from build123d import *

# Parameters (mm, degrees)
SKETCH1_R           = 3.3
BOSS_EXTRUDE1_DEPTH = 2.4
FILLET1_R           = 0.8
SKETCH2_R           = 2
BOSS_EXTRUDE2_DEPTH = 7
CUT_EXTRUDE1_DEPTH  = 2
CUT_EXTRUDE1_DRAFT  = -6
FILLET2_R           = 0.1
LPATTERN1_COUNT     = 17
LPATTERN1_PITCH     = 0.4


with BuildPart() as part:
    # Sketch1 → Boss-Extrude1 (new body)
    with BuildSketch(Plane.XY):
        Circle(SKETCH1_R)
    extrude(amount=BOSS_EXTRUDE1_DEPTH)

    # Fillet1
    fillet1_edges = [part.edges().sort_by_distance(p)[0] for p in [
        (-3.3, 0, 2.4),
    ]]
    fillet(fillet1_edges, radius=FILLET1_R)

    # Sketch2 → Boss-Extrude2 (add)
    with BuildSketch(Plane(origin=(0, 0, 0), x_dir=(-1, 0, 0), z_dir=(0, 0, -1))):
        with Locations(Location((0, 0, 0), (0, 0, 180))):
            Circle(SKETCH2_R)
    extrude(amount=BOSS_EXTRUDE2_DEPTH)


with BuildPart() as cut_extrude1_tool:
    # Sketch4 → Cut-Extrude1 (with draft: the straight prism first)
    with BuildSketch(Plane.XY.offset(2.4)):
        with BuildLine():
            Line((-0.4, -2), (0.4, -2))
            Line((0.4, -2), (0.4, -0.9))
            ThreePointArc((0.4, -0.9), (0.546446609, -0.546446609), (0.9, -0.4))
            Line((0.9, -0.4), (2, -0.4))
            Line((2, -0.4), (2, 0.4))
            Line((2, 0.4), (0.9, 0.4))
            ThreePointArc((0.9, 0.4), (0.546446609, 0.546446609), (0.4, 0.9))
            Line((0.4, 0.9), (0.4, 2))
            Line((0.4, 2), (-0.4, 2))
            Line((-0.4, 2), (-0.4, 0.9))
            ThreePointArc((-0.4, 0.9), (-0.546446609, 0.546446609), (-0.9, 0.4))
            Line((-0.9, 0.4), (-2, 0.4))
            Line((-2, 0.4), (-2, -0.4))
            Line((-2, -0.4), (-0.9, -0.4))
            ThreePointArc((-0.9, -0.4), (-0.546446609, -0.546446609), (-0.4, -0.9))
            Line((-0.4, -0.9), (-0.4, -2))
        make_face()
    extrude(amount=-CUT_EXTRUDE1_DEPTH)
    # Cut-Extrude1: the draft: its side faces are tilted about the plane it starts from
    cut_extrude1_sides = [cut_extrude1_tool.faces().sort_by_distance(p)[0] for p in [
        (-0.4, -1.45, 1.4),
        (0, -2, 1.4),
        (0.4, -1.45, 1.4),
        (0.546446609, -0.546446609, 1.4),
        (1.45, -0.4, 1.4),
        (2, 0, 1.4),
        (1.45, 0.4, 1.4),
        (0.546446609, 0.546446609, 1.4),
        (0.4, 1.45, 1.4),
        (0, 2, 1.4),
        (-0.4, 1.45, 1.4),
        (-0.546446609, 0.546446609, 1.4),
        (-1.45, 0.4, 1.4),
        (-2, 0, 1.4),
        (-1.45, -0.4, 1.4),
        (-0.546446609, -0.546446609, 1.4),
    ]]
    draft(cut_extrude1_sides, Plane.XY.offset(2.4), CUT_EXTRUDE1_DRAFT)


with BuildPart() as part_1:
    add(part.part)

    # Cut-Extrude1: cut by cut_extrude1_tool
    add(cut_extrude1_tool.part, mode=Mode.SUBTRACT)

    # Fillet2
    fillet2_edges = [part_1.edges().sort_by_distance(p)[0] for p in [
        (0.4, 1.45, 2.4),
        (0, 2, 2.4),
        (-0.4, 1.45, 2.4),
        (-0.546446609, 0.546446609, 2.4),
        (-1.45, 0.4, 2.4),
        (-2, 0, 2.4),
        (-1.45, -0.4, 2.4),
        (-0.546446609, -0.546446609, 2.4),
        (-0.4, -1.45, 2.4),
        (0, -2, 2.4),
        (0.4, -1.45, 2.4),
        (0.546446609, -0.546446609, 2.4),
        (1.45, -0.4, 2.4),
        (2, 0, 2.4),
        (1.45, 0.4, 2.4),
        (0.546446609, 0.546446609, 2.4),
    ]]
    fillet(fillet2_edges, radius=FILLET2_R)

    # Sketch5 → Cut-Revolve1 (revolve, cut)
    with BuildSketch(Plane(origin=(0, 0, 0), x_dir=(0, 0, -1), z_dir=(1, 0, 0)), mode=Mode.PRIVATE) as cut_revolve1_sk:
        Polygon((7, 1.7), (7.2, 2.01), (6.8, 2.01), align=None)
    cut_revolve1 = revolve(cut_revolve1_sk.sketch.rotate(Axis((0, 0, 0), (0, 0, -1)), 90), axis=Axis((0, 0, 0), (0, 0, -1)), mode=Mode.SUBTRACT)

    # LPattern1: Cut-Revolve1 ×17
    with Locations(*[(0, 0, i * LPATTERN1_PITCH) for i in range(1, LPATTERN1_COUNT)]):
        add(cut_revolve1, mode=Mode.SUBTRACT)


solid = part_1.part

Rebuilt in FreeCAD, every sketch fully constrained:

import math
import FreeCAD as App
import Part
import Sketcher
from FreeCAD import Vector


def edges_at(feature, points):
    """Names of the edges that pass closest to the given points."""
    edges = feature.Shape.Edges
    near = lambda p: min(range(len(edges)), key=lambda i: edges[i].distToShape(Part.Vertex(*p))[0])
    return sorted({f"Edge{near(p) + 1}" for p in points})


def faces_at(feature, points):
    """Names of the faces that lie closest to the given points."""
    faces = feature.Shape.Faces
    near = lambda p: min(range(len(faces)), key=lambda i: faces[i].distToShape(Part.Vertex(*p))[0])
    return sorted({f"Face{near(p) + 1}" for p in points})

doc = App.newDocument("Part")
body = doc.addObject("PartDesign::Body", "Body")

# Sketch on XY plane
sketch1 = body.newObject("Sketcher::SketchObject", "Sketch")
sketch1.AttachmentSupport = (doc.getObject("XY_Plane"), [""])
sketch1.MapMode = "FlatFace"
sketch1.addGeometry(Part.Circle(Vector(0, 0, 0), Vector(0, 0, 1), 3.3), False)
sketch1.addConstraint(Sketcher.Constraint("Coincident", 0, 3, -1, 1))
sketch1.addConstraint(Sketcher.Constraint("Diameter", 0, 6.6))
pad1 = body.newObject("PartDesign::Pad", "Pad")
pad1.Profile = sketch1
pad1.Length = 2.4
doc.recompute()

fillet = body.newObject("PartDesign::Fillet", "Fillet")
fillet.Base = (pad1, edges_at(pad1, [(-3.3, 0, 2.4)]))
fillet.Radius = 0.8

# Sketch on XY plane
sketch2 = body.newObject("Sketcher::SketchObject", "Sketch001")
sketch2.AttachmentSupport = (doc.getObject("XY_Plane"), [""])
sketch2.MapMode = "FlatFace"
sketch2.addGeometry(Part.Circle(Vector(0, 0, 0), Vector(0, 0, 1), 2), False)
sketch2.addConstraint(Sketcher.Constraint("Coincident", 0, 3, -1, 1))
sketch2.addConstraint(Sketcher.Constraint("Diameter", 0, 4.0))
pad2 = body.newObject("PartDesign::Pad", "Pad001")
pad2.Profile = sketch2
pad2.Length = 7
pad2.Reversed = True
body2 = doc.addObject("PartDesign::Body", "Body001")

# Sketch on XY plane
sketch3 = body2.newObject("Sketcher::SketchObject", "Sketch002")
sketch3.AttachmentSupport = (doc.getObject("XY_Plane001"), [""])
sketch3.MapMode = "FlatFace"
sketch3.AttachmentOffset = App.Placement(Vector(0, 0, 2.4), App.Rotation())
sketch3.addGeometry(Part.LineSegment(Vector(-0.4, -2, 0), Vector(0.4, -2, 0)), False)
sketch3.addGeometry(Part.LineSegment(Vector(0.4, -2, 0), Vector(0.4, -0.9, 0)), False)
sketch3.addGeometry(Part.ArcOfCircle(Part.Circle(Vector(0.9, -0.9, 0), Vector(0, 0, 1), 0.5), math.radians(90), math.radians(180)), False)
sketch3.addGeometry(Part.LineSegment(Vector(0.9, -0.4, 0), Vector(2, -0.4, 0)), False)
sketch3.addGeometry(Part.LineSegment(Vector(2, -0.4, 0), Vector(2, 0.4, 0)), False)
sketch3.addGeometry(Part.LineSegment(Vector(2, 0.4, 0), Vector(0.9, 0.4, 0)), False)
sketch3.addGeometry(Part.ArcOfCircle(Part.Circle(Vector(0.9, 0.9, 0), Vector(0, 0, 1), 0.5), math.radians(180), math.radians(270)), False)
sketch3.addGeometry(Part.LineSegment(Vector(0.4, 0.9, 0), Vector(0.4, 2, 0)), False)
sketch3.addGeometry(Part.LineSegment(Vector(0.4, 2, 0), Vector(-0.4, 2, 0)), False)
sketch3.addGeometry(Part.LineSegment(Vector(-0.4, 2, 0), Vector(-0.4, 0.9, 0)), False)
sketch3.addGeometry(Part.ArcOfCircle(Part.Circle(Vector(-0.9, 0.9, 0), Vector(0, 0, 1), 0.5), math.radians(-90), math.radians(0)), False)
sketch3.addGeometry(Part.LineSegment(Vector(-0.9, 0.4, 0), Vector(-2, 0.4, 0)), False)
sketch3.addGeometry(Part.LineSegment(Vector(-2, 0.4, 0), Vector(-2, -0.4, 0)), False)
sketch3.addGeometry(Part.LineSegment(Vector(-2, -0.4, 0), Vector(-0.9, -0.4, 0)), False)
sketch3.addGeometry(Part.ArcOfCircle(Part.Circle(Vector(-0.9, -0.9, 0), Vector(0, 0, 1), 0.5), math.radians(0), math.radians(90)), False)
sketch3.addGeometry(Part.LineSegment(Vector(-0.4, -0.9, 0), Vector(-0.4, -2, 0)), False)
sketch3.addConstraint(Sketcher.Constraint("Coincident", 0, 2, 1, 1))
sketch3.addConstraint(Sketcher.Constraint("Tangent", 1, 2, 2, 2))
sketch3.addConstraint(Sketcher.Constraint("Tangent", 2, 1, 3, 1))
sketch3.addConstraint(Sketcher.Constraint("Coincident", 3, 2, 4, 1))
sketch3.addConstraint(Sketcher.Constraint("Coincident", 4, 2, 5, 1))
sketch3.addConstraint(Sketcher.Constraint("Tangent", 5, 2, 6, 2))
sketch3.addConstraint(Sketcher.Constraint("Tangent", 6, 1, 7, 1))
sketch3.addConstraint(Sketcher.Constraint("Coincident", 7, 2, 8, 1))
sketch3.addConstraint(Sketcher.Constraint("Coincident", 8, 2, 9, 1))
sketch3.addConstraint(Sketcher.Constraint("Tangent", 9, 2, 10, 2))
sketch3.addConstraint(Sketcher.Constraint("Tangent", 10, 1, 11, 1))
sketch3.addConstraint(Sketcher.Constraint("Coincident", 11, 2, 12, 1))
sketch3.addConstraint(Sketcher.Constraint("Coincident", 12, 2, 13, 1))
sketch3.addConstraint(Sketcher.Constraint("Tangent", 13, 2, 14, 2))
sketch3.addConstraint(Sketcher.Constraint("Tangent", 14, 1, 15, 1))
sketch3.addConstraint(Sketcher.Constraint("Coincident", 15, 2, 0, 1))
sketch3.addConstraint(Sketcher.Constraint("Horizontal", 0))
sketch3.addConstraint(Sketcher.Constraint("Vertical", 1))
sketch3.addConstraint(Sketcher.Constraint("Horizontal", 3))
sketch3.addConstraint(Sketcher.Constraint("Vertical", 4))
sketch3.addConstraint(Sketcher.Constraint("Horizontal", 5))
sketch3.addConstraint(Sketcher.Constraint("Vertical", 7))
sketch3.addConstraint(Sketcher.Constraint("Horizontal", 8))
sketch3.addConstraint(Sketcher.Constraint("Vertical", 9))
sketch3.addConstraint(Sketcher.Constraint("Horizontal", 11))
sketch3.addConstraint(Sketcher.Constraint("Vertical", 12))
sketch3.addConstraint(Sketcher.Constraint("Horizontal", 13))
sketch3.addConstraint(Sketcher.Constraint("Vertical", 15))
sketch3.addConstraint(Sketcher.Constraint("Equal", 2, 6))
sketch3.addConstraint(Sketcher.Constraint("Equal", 6, 10))
sketch3.addConstraint(Sketcher.Constraint("Equal", 10, 14))
sketch3.addConstraint(Sketcher.Constraint("Symmetric", 2, 3, 10, 3, -1, 1))
sketch3.addConstraint(Sketcher.Constraint("Symmetric", 6, 3, 14, 3, -1, 1))
sketch3.addConstraint(Sketcher.Constraint("Symmetric", 6, 3, 10, 3, -2))
sketch3.addConstraint(Sketcher.Constraint("Equal", 5, 11))
sketch3.addConstraint(Sketcher.Constraint("Equal", 13, 1))
sketch3.addConstraint(Sketcher.Constraint("Equal", 8, 4))
sketch3.addConstraint(Sketcher.Constraint("Equal", 1, 7))
sketch3.addConstraint(Sketcher.Constraint("Radius", 2, 0.5))
sketch3.addConstraint(Sketcher.Constraint("DistanceX", 0, 1, 0, 2, 0.8))
sketch3.addConstraint(Sketcher.Constraint("DistanceX", 3, 1, 3, 2, 1.1))
pad3 = body2.newObject("PartDesign::Pad", "Pad002")
pad3.Profile = sketch3
pad3.Length = 2
pad3.Reversed = True
doc.recompute()

datumplane = body2.newObject("PartDesign::Plane", "DatumPlane")
datumplane.AttachmentSupport = (doc.getObject("XY_Plane001"), [""])
datumplane.MapMode = "FlatFace"
datumplane.AttachmentOffset = App.Placement(Vector(0, 0, 2.4), App.Rotation())
draft = body2.newObject("PartDesign::Draft", "Draft")
draft.Base = (pad3, faces_at(pad3, [
    (-0.4, -1.45, 1.4),
    (0, -2, 1.4),
    (0.4, -1.45, 1.4),
    (0.546, -0.546, 1.4),
    (1.45, -0.4, 1.4),
    (2, 0, 1.4),
    (1.45, 0.4, 1.4),
    (0.546, 0.546, 1.4),
    (0.4, 1.45, 1.4),
    (0, 2, 1.4),
    (-0.4, 1.45, 1.4),
    (-0.546, 0.546, 1.4),
    (-1.45, 0.4, 1.4),
    (-2, 0, 1.4),
    (-1.45, -0.4, 1.4),
    (-0.546, -0.546, 1.4),
]))
draft.NeutralPlane = (datumplane, [""])
draft.Angle = 6
draft.Reversed = True
doc.recompute()

boolean = body.newObject("PartDesign::Boolean", "Boolean")
boolean.Type = "Cut"
boolean.addObjects([body2])
doc.recompute()

fillet2 = body.newObject("PartDesign::Fillet", "Fillet001")
fillet2.Base = (boolean, edges_at(boolean, [
    (0.4, 1.45, 2.4),
    (0, 2, 2.4),
    (-0.4, 1.45, 2.4),
    (-0.546, 0.546, 2.4),
    (-1.45, 0.4, 2.4),
    (-2, 0, 2.4),
    (-1.45, -0.4, 2.4),
    (-0.546, -0.546, 2.4),
    (-0.4, -1.45, 2.4),
    (0, -2, 2.4),
    (0.4, -1.45, 2.4),
    (0.546, -0.546, 2.4),
    (1.45, -0.4, 2.4),
    (2, 0, 2.4),
    (1.45, 0.4, 2.4),
    (0.546, 0.546, 2.4),
]))
fillet2.Radius = 0.1

# Sketch on YZ plane
sketch4 = body.newObject("Sketcher::SketchObject", "Sketch003")
sketch4.AttachmentSupport = (doc.getObject("YZ_Plane"), [""])
sketch4.MapMode = "FlatFace"
sketch4.addGeometry(Part.LineSegment(Vector(1.7, -7, 0), Vector(2.01, -7.2, 0)), False)
sketch4.addGeometry(Part.LineSegment(Vector(2.01, -7.2, 0), Vector(2.01, -6.8, 0)), False)
sketch4.addGeometry(Part.LineSegment(Vector(2.01, -6.8, 0), Vector(1.7, -7, 0)), False)
sketch4.addConstraint(Sketcher.Constraint("Coincident", 0, 2, 1, 1))
sketch4.addConstraint(Sketcher.Constraint("Coincident", 1, 2, 2, 1))
sketch4.addConstraint(Sketcher.Constraint("Coincident", 2, 2, 0, 1))
sketch4.addConstraint(Sketcher.Constraint("Vertical", 1))
sketch4.addConstraint(Sketcher.Constraint("Equal", 0, 2))
sketch4.addConstraint(Sketcher.Constraint("DistanceY", 1, 1, 1, 2, 0.4))
sketch4.addConstraint(Sketcher.Constraint("DistanceY", 2, 2, -1, 1, 7.0))
sketch4.addConstraint(Sketcher.Constraint("DistanceX", -1, 1, 2, 2, 1.7))
sketch4.addConstraint(Sketcher.Constraint("DistanceX", -1, 1, 0, 2, 2.01))
groove = body.newObject("PartDesign::Groove", "Groove")
groove.Profile = sketch4
groove.ReferenceAxis = (sketch4, ["V_Axis"])
groove.Angle = 360
doc.recompute()

linearpattern = body.newObject("PartDesign::LinearPattern", "LinearPattern")
linearpattern.Originals = [groove]
linearpattern.Direction = (doc.getObject("Z_Axis"), [""])
linearpattern.Mode = "offset"
linearpattern.Offset = 0.4
linearpattern.Occurrences = 17
body.Tip = linearpattern

doc.recompute()
